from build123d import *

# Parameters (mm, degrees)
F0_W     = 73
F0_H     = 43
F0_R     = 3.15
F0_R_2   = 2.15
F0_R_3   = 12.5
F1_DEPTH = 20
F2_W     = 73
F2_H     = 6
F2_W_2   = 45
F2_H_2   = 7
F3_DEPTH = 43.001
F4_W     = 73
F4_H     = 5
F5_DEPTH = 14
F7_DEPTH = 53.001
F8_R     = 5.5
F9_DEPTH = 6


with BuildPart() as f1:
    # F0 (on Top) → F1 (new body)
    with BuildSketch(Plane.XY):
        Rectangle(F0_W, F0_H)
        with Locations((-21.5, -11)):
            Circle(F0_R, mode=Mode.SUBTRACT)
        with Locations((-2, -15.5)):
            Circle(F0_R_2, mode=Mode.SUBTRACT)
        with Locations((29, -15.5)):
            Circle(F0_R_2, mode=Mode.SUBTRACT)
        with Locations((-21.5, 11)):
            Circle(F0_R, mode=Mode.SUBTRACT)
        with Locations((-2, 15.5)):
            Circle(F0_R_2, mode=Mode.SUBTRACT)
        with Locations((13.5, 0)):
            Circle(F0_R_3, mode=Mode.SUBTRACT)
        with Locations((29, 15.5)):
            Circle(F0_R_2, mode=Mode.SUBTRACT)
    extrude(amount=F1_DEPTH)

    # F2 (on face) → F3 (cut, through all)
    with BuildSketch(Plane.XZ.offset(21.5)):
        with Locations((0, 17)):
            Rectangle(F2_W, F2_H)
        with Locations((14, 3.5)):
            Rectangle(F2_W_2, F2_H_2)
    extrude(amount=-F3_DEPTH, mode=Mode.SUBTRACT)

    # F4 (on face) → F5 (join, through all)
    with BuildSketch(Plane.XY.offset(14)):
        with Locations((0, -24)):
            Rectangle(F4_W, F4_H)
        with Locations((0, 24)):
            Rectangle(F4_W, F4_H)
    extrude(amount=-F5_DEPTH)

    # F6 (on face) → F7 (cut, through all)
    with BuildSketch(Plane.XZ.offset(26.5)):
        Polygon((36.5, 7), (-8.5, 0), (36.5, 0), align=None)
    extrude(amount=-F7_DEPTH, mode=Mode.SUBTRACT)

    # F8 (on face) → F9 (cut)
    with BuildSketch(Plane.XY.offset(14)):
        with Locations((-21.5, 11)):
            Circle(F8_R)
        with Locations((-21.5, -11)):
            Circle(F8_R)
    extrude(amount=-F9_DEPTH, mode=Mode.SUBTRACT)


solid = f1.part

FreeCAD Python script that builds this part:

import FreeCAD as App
import Part
import Sketcher

V = App.Vector
Q = App.Units.Quantity


def add_polygon(sketch, points):
    """Adds a closed chain of lines whose ends are joined by coincident constraints."""
    first, n = sketch.GeometryCount, len(points)
    for a, b in zip(points, points[1:] + points[:1]):
        sketch.addGeometry(Part.LineSegment(App.Vector(*a, 0), App.Vector(*b, 0)), False)
    for i in range(n):
        sketch.addConstraint(Sketcher.Constraint("Coincident", first + i, 2, first + (i + 1) % n, 1))

doc = App.newDocument("Part")
body = doc.addObject("PartDesign::Body", "Body")

# Sketch on XY plane
sketch1 = body.newObject("Sketcher::SketchObject", "Sketch")
sketch1.AttachmentSupport = (doc.getObject("XY_Plane"), [""])
sketch1.MapMode = "FlatFace"
add_polygon(sketch1, [(-36.5, 21.5), (-36.5, -21.5), (36.5, -21.5), (36.5, 21.5)])  # lines 0-3
sketch1.addGeometry(Part.Circle(V(-21.5, -11, 0), V(0, 0, 1), 3.1), False)  # 4
sketch1.addGeometry(Part.Circle(V(-2, -15.5, 0), V(0, 0, 1), 2.1), False)  # 5
sketch1.addGeometry(Part.Circle(V(29, -15.5, 0), V(0, 0, 1), 2.1), False)  # 6
sketch1.addGeometry(Part.Circle(V(-21.5, 11, 0), V(0, 0, 1), 3.1), False)  # 7
sketch1.addGeometry(Part.Circle(V(-2, 15.5, 0), V(0, 0, 1), 2.1), False)  # 8
sketch1.addGeometry(Part.Circle(V(13.5, 0, 0), V(0, 0, 1), 12.5), False)  # 9
sketch1.addGeometry(Part.Circle(V(29, 15.5, 0), V(0, 0, 1), 2.1), False)  # 10
sketch1.addConstraint([
    Sketcher.Constraint("Vertical", 0),
    Sketcher.Constraint("Horizontal", 1),
    Sketcher.Constraint("Vertical", 2),
    Sketcher.Constraint("Horizontal", 3),
    Sketcher.Constraint("Equal", 5, 6),
    Sketcher.Constraint("Equal", 4, 7),
    Sketcher.Constraint("Equal", 6, 8),
    Sketcher.Constraint("Equal", 8, 10),
    Sketcher.Constraint("Symmetric", 0, 2, 2, 2, -1, 1),
    Sketcher.Constraint("Symmetric", 4, 3, 7, 3, -1),
    Sketcher.Constraint("Symmetric", 5, 3, 8, 3, -1),
    Sketcher.Constraint("Symmetric", 6, 3, 10, 3, -1),
    Sketcher.Constraint("PointOnObject", 9, 3, -1),
    Sketcher.Constraint("Horizontal", 5, 3, 6, 3),
    Sketcher.Constraint("Diameter", 9, Q("25 mm")),
    Sketcher.Constraint("Diameter", 4, Q("6.3 mm")),
    Sketcher.Constraint("Diameter", 5, Q("4.3 mm")),
    Sketcher.Constraint("DistanceX", 1, 1, 1, 2, Q("73 mm")),
    Sketcher.Constraint("DistanceY", 0, 2, 0, 1, Q("43 mm")),
    Sketcher.Constraint("DistanceY", 4, 3, -1, 1, Q("11 mm")),
    Sketcher.Constraint("DistanceX", 5, 3, -1, 1, Q("2 mm")),
    Sketcher.Constraint("DistanceX", -1, 1, 6, 3, Q("29 mm")),
    Sketcher.Constraint("DistanceY", 5, 3, 8, 3, Q("31 mm")),
    Sketcher.Constraint("DistanceX", 4, 3, 9, 3, Q("35 mm")),
    Sketcher.Constraint("DistanceX", 0, 2, 4, 3, Q("15 mm")),
])
pad1 = body.newObject("PartDesign::Pad", "Pad")
pad1.Profile = sketch1
pad1.Length = 20

# Sketch on XZ plane
sketch2 = body.newObject("Sketcher::SketchObject", "Sketch001")
sketch2.AttachmentSupport = (doc.getObject("XZ_Plane"), [""])
sketch2.MapMode = "FlatFace"
sketch2.AttachmentOffset = App.Placement(V(0, 0, 21.5), App.Rotation())
add_polygon(sketch2, [(-36, 20), (-36, 14), (36, 14), (36, 20)])  # lines 0-3
add_polygon(sketch2, [(-8, 7), (-8, 0), (36, 0), (36, 7)])  # lines 4-7
sketch2.addConstraint([
    Sketcher.Constraint("Vertical", 0),
    Sketcher.Constraint("Horizontal", 1),
    Sketcher.Constraint("Vertical", 2),
    Sketcher.Constraint("Horizontal", 3),
    Sketcher.Constraint("Vertical", 4),
    Sketcher.Constraint("Horizontal", 5),
    Sketcher.Constraint("Vertical", 6),
    Sketcher.Constraint("Horizontal", 7),
    Sketcher.Constraint("PointOnObject", 4, 2, -1),
    Sketcher.Constraint("Vertical", 2, 2, 5, 2),
    Sketcher.Constraint("DistanceX", 1, 1, 1, 2, Q("73 mm")),
    Sketcher.Constraint("DistanceX", 5, 1, 5, 2, Q("45 mm")),
    Sketcher.Constraint("DistanceY", 0, 2, 0, 1, Q("6 mm")),
    Sketcher.Constraint("DistanceY", 4, 2, 4, 1, Q("7 mm")),
    Sketcher.Constraint("DistanceY", -1, 1, 0, 2, Q("14 mm")),
    Sketcher.Constraint("DistanceX", 0, 2, -1, 1, Q("36.5 mm")),
])
pocket1 = body.newObject("PartDesign::Pocket", "Pocket")
pocket1.Profile = sketch2
pocket1.Type = "ThroughAll"

# Sketch on XY plane
sketch3 = body.newObject("Sketcher::SketchObject", "Sketch002")
sketch3.AttachmentSupport = (doc.getObject("XY_Plane"), [""])
sketch3.MapMode = "FlatFace"
sketch3.AttachmentOffset = App.Placement(V(0, 0, 14), App.Rotation())
add_polygon(sketch3, [(-36, -22), (-36, -26), (36, -26), (36, -22)])  # lines 0-3
add_polygon(sketch3, [(-36, 26), (-36, 22), (36, 22), (36, 26)])  # lines 4-7
sketch3.addConstraint([
    Sketcher.Constraint("Vertical", 0),
    Sketcher.Constraint("Horizontal", 1),
    Sketcher.Constraint("Vertical", 2),
    Sketcher.Constraint("Horizontal", 3),
    Sketcher.Constraint("Vertical", 4),
    Sketcher.Constraint("Horizontal", 5),
    Sketcher.Constraint("Vertical", 6),
    Sketcher.Constraint("Horizontal", 7),
    Sketcher.Constraint("Symmetric", 2, 2, 4, 2, -1, 1),
    Sketcher.Constraint("Symmetric", 0, 2, 6, 2, -1, 1),
    Sketcher.Constraint("Vertical", 3, 2, 4, 2),
    Sketcher.Constraint("DistanceX", 1, 1, 1, 2, Q("73 mm")),
    Sketcher.Constraint("DistanceY", 0, 2, 0, 1, Q("5 mm")),
    Sketcher.Constraint("DistanceY", 3, 2, 4, 2, Q("43 mm")),
])
pad2 = body.newObject("PartDesign::Pad", "Pad001")
pad2.Profile = sketch3
pad2.Length = 14
pad2.Reversed = True

# Sketch on XZ plane
sketch4 = body.newObject("Sketcher::SketchObject", "Sketch003")
sketch4.AttachmentSupport = (doc.getObject("XZ_Plane"), [""])
sketch4.MapMode = "FlatFace"
sketch4.AttachmentOffset = App.Placement(V(0, 0, 26.5), App.Rotation())
add_polygon(sketch4, [(36, 7), (-8, 0), (36, 0)])  # lines 0-2
sketch4.addConstraint([
    Sketcher.Constraint("Horizontal", 1),
    Sketcher.Constraint("Vertical", 2),
    Sketcher.Constraint("PointOnObject", 0, 2, -1),
    Sketcher.Constraint("DistanceX", 1, 1, 1, 2, Q("45 mm")),
    Sketcher.Constraint("DistanceY", 2, 1, 2, 2, Q("7 mm")),
    Sketcher.Constraint("DistanceX", 0, 2, -1, 1, Q("8.5 mm")),
])
pocket2 = body.newObject("PartDesign::Pocket", "Pocket001")
pocket2.Profile = sketch4
pocket2.Type = "ThroughAll"

# Sketch on XY plane
sketch5 = body.newObject("Sketcher::SketchObject", "Sketch004")
sketch5.AttachmentSupport = (doc.getObject("XY_Plane"), [""])
sketch5.MapMode = "FlatFace"
sketch5.AttachmentOffset = App.Placement(V(0, 0, 14), App.Rotation())
sketch5.addGeometry([
    Part.Circle(V(-22, 11, 0), V(0, 0, 1), 6),
    Part.Circle(V(-22, -11, 0), V(0, 0, 1), 6),
], False)
sketch5.addConstraint([
    Sketcher.Constraint("Equal", 0, 1),
    Sketcher.Constraint("Symmetric", 0, 3, 1, 3, -1),
    Sketcher.Constraint("Diameter", 0, Q("11 mm")),
    Sketcher.Constraint("DistanceY", -1, 1, 0, 3, Q("11 mm")),
    Sketcher.Constraint("DistanceX", 0, 3, -1, 1, Q("21.5 mm")),
])
pocket3 = body.newObject("PartDesign::Pocket", "Pocket002")
pocket3.Profile = sketch5
pocket3.Length = 6

doc.recompute()
